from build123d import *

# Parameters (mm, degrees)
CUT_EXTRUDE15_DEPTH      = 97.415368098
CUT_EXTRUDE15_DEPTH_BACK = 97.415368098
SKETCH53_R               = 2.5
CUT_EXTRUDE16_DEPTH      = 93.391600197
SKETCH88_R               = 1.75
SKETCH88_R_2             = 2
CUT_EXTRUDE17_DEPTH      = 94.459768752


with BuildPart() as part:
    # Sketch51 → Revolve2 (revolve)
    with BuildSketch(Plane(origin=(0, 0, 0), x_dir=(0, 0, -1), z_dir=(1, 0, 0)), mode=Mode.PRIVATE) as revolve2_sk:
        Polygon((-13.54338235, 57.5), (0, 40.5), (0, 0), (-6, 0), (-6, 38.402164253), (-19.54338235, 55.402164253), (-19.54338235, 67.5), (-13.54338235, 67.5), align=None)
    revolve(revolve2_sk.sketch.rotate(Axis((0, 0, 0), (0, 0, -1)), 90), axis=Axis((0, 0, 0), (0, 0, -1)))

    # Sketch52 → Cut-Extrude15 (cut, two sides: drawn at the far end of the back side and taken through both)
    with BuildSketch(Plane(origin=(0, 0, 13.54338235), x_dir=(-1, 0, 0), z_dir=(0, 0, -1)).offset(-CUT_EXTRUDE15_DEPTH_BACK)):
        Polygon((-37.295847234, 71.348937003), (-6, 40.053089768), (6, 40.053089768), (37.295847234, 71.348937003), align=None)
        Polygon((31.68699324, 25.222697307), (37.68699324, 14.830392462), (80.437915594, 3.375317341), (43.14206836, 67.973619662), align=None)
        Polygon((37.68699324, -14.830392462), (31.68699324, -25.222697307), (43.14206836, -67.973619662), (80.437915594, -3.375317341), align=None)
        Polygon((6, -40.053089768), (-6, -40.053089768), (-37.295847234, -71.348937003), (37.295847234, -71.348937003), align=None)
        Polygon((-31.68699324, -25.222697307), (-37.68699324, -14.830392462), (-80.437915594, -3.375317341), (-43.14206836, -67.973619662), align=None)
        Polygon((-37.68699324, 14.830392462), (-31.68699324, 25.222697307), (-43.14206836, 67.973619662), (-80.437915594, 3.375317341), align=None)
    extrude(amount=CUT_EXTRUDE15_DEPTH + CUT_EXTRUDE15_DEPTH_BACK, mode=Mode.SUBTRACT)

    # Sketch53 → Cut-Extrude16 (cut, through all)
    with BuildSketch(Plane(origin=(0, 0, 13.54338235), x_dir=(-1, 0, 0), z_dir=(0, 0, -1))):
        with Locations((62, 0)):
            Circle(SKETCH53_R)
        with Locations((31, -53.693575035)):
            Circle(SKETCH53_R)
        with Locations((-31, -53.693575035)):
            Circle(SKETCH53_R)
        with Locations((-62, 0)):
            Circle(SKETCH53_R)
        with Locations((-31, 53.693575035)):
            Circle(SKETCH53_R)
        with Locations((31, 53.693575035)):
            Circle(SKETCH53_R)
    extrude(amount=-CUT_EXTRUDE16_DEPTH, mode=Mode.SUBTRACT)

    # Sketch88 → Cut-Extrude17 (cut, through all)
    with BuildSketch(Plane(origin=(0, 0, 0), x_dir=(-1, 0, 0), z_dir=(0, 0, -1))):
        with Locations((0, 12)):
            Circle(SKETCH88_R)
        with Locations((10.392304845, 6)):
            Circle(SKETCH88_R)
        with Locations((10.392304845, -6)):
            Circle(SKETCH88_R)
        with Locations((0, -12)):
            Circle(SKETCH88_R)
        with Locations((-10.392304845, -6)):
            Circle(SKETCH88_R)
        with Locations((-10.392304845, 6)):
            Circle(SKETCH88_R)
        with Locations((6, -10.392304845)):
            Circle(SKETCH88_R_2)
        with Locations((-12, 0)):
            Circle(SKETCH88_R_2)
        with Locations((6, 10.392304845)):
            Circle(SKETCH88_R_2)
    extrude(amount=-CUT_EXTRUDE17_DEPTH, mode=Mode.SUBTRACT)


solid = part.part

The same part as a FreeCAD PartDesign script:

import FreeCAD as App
import Part
import Sketcher
Q = App.Units.Quantity

doc = App.newDocument("Part")
body = doc.addObject("PartDesign::Body", "Body")

# Sketch on YZ plane
sketch1 = body.newObject("Sketcher::SketchObject", "Sketch")
sketch1.AttachmentSupport = (doc.getObject("YZ_Plane"), [""])
sketch1.MapMode = "FlatFace"
sketch1.addGeometry(Part.LineSegment(App.Vector(40, 0, 0), App.Vector(58, 14, 0)), False)
sketch1.addGeometry(Part.LineSegment(App.Vector(58, 14, 0), App.Vector(68, 14, 0)), False)
sketch1.addGeometry(Part.LineSegment(App.Vector(68, 14, 0), App.Vector(68, 20, 0)), False)
sketch1.addGeometry(Part.LineSegment(App.Vector(68, 20, 0), App.Vector(55, 20, 0)), False)
sketch1.addGeometry(Part.LineSegment(App.Vector(55, 20, 0), App.Vector(38, 6, 0)), False)
sketch1.addGeometry(Part.LineSegment(App.Vector(38, 6, 0), App.Vector(0, 6, 0)), False)
sketch1.addGeometry(Part.LineSegment(App.Vector(0, 6, 0), App.Vector(0, 0, 0)), False)
sketch1.addGeometry(Part.LineSegment(App.Vector(0, 0, 0), App.Vector(40, 0, 0)), False)
sketch1.addConstraint(Sketcher.Constraint("Coincident", 0, 2, 1, 1))
sketch1.addConstraint(Sketcher.Constraint("Coincident", 1, 2, 2, 1))
sketch1.addConstraint(Sketcher.Constraint("Coincident", 2, 2, 3, 1))
sketch1.addConstraint(Sketcher.Constraint("Coincident", 3, 2, 4, 1))
sketch1.addConstraint(Sketcher.Constraint("Coincident", 4, 2, 5, 1))
sketch1.addConstraint(Sketcher.Constraint("Coincident", 5, 2, 6, 1))
sketch1.addConstraint(Sketcher.Constraint("Coincident", 6, 2, 7, 1))
sketch1.addConstraint(Sketcher.Constraint("Coincident", 7, 2, 0, 1))
sketch1.addConstraint(Sketcher.Constraint("Horizontal", 1))
sketch1.addConstraint(Sketcher.Constraint("Vertical", 2))
sketch1.addConstraint(Sketcher.Constraint("Horizontal", 3))
sketch1.addConstraint(Sketcher.Constraint("Horizontal", 5))
sketch1.addConstraint(Sketcher.Constraint("Vertical", 6))
sketch1.addConstraint(Sketcher.Constraint("Horizontal", 7))
sketch1.addConstraint(Sketcher.Constraint("Coincident", 6, 2, -1, 1))
sketch1.addConstraint(Sketcher.Constraint("Parallel", 0, 4))
sketch1.addConstraint(Sketcher.Constraint("Equal", 2, 6))
sketch1.addConstraint(Sketcher.Constraint("DistanceX", 1, 1, 1, 2, Q("10 mm")))
sketch1.addConstraint(Sketcher.Constraint("DistanceY", 2, 1, 2, 2, Q("6 mm")))
sketch1.addConstraint(Sketcher.Constraint("DistanceX", 7, 1, 7, 2, Q("40.5 mm")))
sketch1.addConstraint(Sketcher.Constraint("DistanceX", 4, 2, 3, 2, Q("17 mm")))
sketch1.addConstraint(Sketcher.Constraint("Distance", 0, Q("21.735299 mm")))
sketch1.addConstraint(Sketcher.Constraint("DistanceX", 3, 2, 3, 1, Q("12.097836 mm")))
revolution = body.newObject("PartDesign::Revolution", "Revolution")
revolution.Profile = sketch1
revolution.ReferenceAxis = (sketch1, ["V_Axis"])
revolution.Angle = 360

# Sketch on XY plane
sketch2 = body.newObject("Sketcher::SketchObject", "Sketch001")
sketch2.AttachmentSupport = (doc.getObject("XY_Plane"), [""])
sketch2.MapMode = "FlatFace"
sketch2.AttachmentOffset = App.Placement(App.Vector(0, 0, 13.543382), App.Rotation())
sketch2.addGeometry(Part.LineSegment(App.Vector(37, 71, 0), App.Vector(6, 40, 0)), False)
sketch2.addGeometry(Part.LineSegment(App.Vector(6, 40, 0), App.Vector(-6, 40, 0)), False)
sketch2.addGeometry(Part.LineSegment(App.Vector(-6, 40, 0), App.Vector(-37, 71, 0)), False)
sketch2.addGeometry(Part.LineSegment(App.Vector(-37, 71, 0), App.Vector(37, 71, 0)), False)
sketch2.addGeometry(Part.LineSegment(App.Vector(-32, 25, 0), App.Vector(-38, 15, 0)), False)
sketch2.addGeometry(Part.LineSegment(App.Vector(-38, 15, 0), App.Vector(-80, 3, 0)), False)
sketch2.addGeometry(Part.LineSegment(App.Vector(-80, 3, 0), App.Vector(-43, 68, 0)), False)
sketch2.addGeometry(Part.LineSegment(App.Vector(-43, 68, 0), App.Vector(-32, 25, 0)), False)
sketch2.addGeometry(Part.LineSegment(App.Vector(-38, -15, 0), App.Vector(-32, -25, 0)), False)
sketch2.addGeometry(Part.LineSegment(App.Vector(-32, -25, 0), App.Vector(-43, -68, 0)), False)
sketch2.addGeometry(Part.LineSegment(App.Vector(-43, -68, 0), App.Vector(-80, -3, 0)), False)
sketch2.addGeometry(Part.LineSegment(App.Vector(-80, -3, 0), App.Vector(-38, -15, 0)), False)
sketch2.addGeometry(Part.LineSegment(App.Vector(-6, -40, 0), App.Vector(6, -40, 0)), False)
sketch2.addGeometry(Part.LineSegment(App.Vector(6, -40, 0), App.Vector(37, -71, 0)), False)
sketch2.addGeometry(Part.LineSegment(App.Vector(37, -71, 0), App.Vector(-37, -71, 0)), False)
sketch2.addGeometry(Part.LineSegment(App.Vector(-37, -71, 0), App.Vector(-6, -40, 0)), False)
sketch2.addGeometry(Part.LineSegment(App.Vector(32, -25, 0), App.Vector(38, -15, 0)), False)
sketch2.addGeometry(Part.LineSegment(App.Vector(38, -15, 0), App.Vector(80, -3, 0)), False)
sketch2.addGeometry(Part.LineSegment(App.Vector(80, -3, 0), App.Vector(43, -68, 0)), False)
sketch2.addGeometry(Part.LineSegment(App.Vector(43, -68, 0), App.Vector(32, -25, 0)), False)
sketch2.addGeometry(Part.LineSegment(App.Vector(38, 15, 0), App.Vector(32, 25, 0)), False)
sketch2.addGeometry(Part.LineSegment(App.Vector(32, 25, 0), App.Vector(43, 68, 0)), False)
sketch2.addGeometry(Part.LineSegment(App.Vector(43, 68, 0), App.Vector(80, 3, 0)), False)
sketch2.addGeometry(Part.LineSegment(App.Vector(80, 3, 0), App.Vector(38, 15, 0)), False)
sketch2.addConstraint(Sketcher.Constraint("Coincident", 0, 2, 1, 1))
sketch2.addConstraint(Sketcher.Constraint("Coincident", 1, 2, 2, 1))
sketch2.addConstraint(Sketcher.Constraint("Coincident", 2, 2, 3, 1))
sketch2.addConstraint(Sketcher.Constraint("Coincident", 3, 2, 0, 1))
sketch2.addConstraint(Sketcher.Constraint("Coincident", 4, 2, 5, 1))
sketch2.addConstraint(Sketcher.Constraint("Coincident", 5, 2, 6, 1))
sketch2.addConstraint(Sketcher.Constraint("Coincident", 6, 2, 7, 1))
sketch2.addConstraint(Sketcher.Constraint("Coincident", 7, 2, 4, 1))
sketch2.addConstraint(Sketcher.Constraint("Coincident", 8, 2, 9, 1))
sketch2.addConstraint(Sketcher.Constraint("Coincident", 9, 2, 10, 1))
sketch2.addConstraint(Sketcher.Constraint("Coincident", 10, 2, 11, 1))
sketch2.addConstraint(Sketcher.Constraint("Coincident", 11, 2, 8, 1))
sketch2.addConstraint(Sketcher.Constraint("Coincident", 12, 2, 13, 1))
sketch2.addConstraint(Sketcher.Constraint("Coincident", 13, 2, 14, 1))
sketch2.addConstraint(Sketcher.Constraint("Coincident", 14, 2, 15, 1))
sketch2.addConstraint(Sketcher.Constraint("Coincident", 15, 2, 12, 1))
sketch2.addConstraint(Sketcher.Constraint("Coincident", 16, 2, 17, 1))
sketch2.addConstraint(Sketcher.Constraint("Coincident", 17, 2, 18, 1))
sketch2.addConstraint(Sketcher.Constraint("Coincident", 18, 2, 19, 1))
sketch2.addConstraint(Sketcher.Constraint("Coincident", 19, 2, 16, 1))
sketch2.addConstraint(Sketcher.Constraint("Coincident", 20, 2, 21, 1))
sketch2.addConstraint(Sketcher.Constraint("Coincident", 21, 2, 22, 1))
sketch2.addConstraint(Sketcher.Constraint("Coincident", 22, 2, 23, 1))
sketch2.addConstraint(Sketcher.Constraint("Coincident", 23, 2, 20, 1))
sketch2.addConstraint(Sketcher.Constraint("Horizontal", 1))
sketch2.addConstraint(Sketcher.Constraint("Horizontal", 3))
sketch2.addConstraint(Sketcher.Constraint("Horizontal", 12))
sketch2.addConstraint(Sketcher.Constraint("Horizontal", 14))
sketch2.addConstraint(Sketcher.Constraint("Symmetric", 1, 2, 12, 2, -1, 1))
sketch2.addConstraint(Sketcher.Constraint("Symmetric", 2, 2, 13, 2, -1, 1))
sketch2.addConstraint(Sketcher.Constraint("Symmetric", 4, 2, 16, 2, -1, 1))
sketch2.addConstraint(Sketcher.Constraint("Symmetric", 5, 2, 17, 2, -1, 1))
sketch2.addConstraint(Sketcher.Constraint("Symmetric", 6, 2, 18, 2, -1, 1))
sketch2.addConstraint(Sketcher.Constraint("Symmetric", 7, 2, 19, 2, -1, 1))
sketch2.addConstraint(Sketcher.Constraint("Symmetric", 8, 2, 20, 2, -1, 1))
sketch2.addConstraint(Sketcher.Constraint("Symmetric", 9, 2, 21, 2, -1, 1))
sketch2.addConstraint(Sketcher.Constraint("Symmetric", 10, 2, 22, 2, -1, 1))
sketch2.addConstraint(Sketcher.Constraint("Symmetric", 11, 2, 23, 2, -1, 1))
sketch2.addConstraint(Sketcher.Constraint("Symmetric", 11, 2, 16, 2, -2))
sketch2.addConstraint(Sketcher.Constraint("Symmetric", 10, 2, 17, 2, -2))
sketch2.addConstraint(Sketcher.Constraint("Symmetric", 9, 2, 18, 2, -2))
sketch2.addConstraint(Sketcher.Constraint("Symmetric", 8, 2, 19, 2, -2))
sketch2.addConstraint(Sketcher.Constraint("Perpendicular", 0, 2))
sketch2.addConstraint(Sketcher.Constraint("Parallel", 4, 6))
sketch2.addConstraint(Sketcher.Constraint("Perpendicular", 5, 7))
sketch2.addConstraint(Sketcher.Constraint("Perpendicular", 13, 15))
sketch2.addConstraint(Sketcher.Constraint("Vertical", 0, 2, 12, 2))
sketch2.addConstraint(Sketcher.Constraint("Vertical", 3, 2, 13, 2))
sketch2.addConstraint(Sketcher.Constraint("Vertical", 2, 2, 14, 2))
sketch2.addConstraint(Sketcher.Constraint("Equal", 2, 5))
sketch2.addConstraint(Sketcher.Constraint("Equal", 5, 7))
sketch2.addConstraint(Sketcher.Constraint("DistanceX", 1, 2, 1, 1, Q("12 mm")))
sketch2.addConstraint(Sketcher.Constraint("Angle", 4, Q("-120 deg")))
sketch2.addConstraint(Sketcher.Constraint("Distance", 4, Q("12 mm")))
sketch2.addConstraint(Sketcher.Constraint("Distance", 0, Q("44.259012 mm")))
sketch2.addConstraint(Sketcher.Constraint("DistanceY", -1, 1, 0, 2, Q("40.05309 mm")))
sketch2.addConstraint(Sketcher.Constraint("DistanceX", 6, 2, -1, 1, Q("43.142068 mm")))
sketch2.addConstraint(Sketcher.Constraint("DistanceY", -1, 1, 6, 2, Q("67.97362 mm")))
pocket1 = body.newObject("PartDesign::Pocket", "Pocket")
pocket1.Profile = sketch2
pocket1.Type = "ThroughAll"
pocket1.Midplane = True

# Sketch on XY plane
sketch3 = body.newObject("Sketcher::SketchObject", "Sketch002")
sketch3.AttachmentSupport = (doc.getObject("XY_Plane"), [""])
sketch3.MapMode = "FlatFace"
sketch3.AttachmentOffset = App.Placement(App.Vector(0, 0, 13.543382), App.Rotation())
sketch3.addGeometry(Part.Circle(App.Vector(-62, 0, 0), App.Vector(0, 0, 1), 2.5), False)
sketch3.addGeometry(Part.Circle(App.Vector(-31, -53.7, 0), App.Vector(0, 0, 1), 2.5), False)
sketch3.addGeometry(Part.Circle(App.Vector(31, -53.7, 0), App.Vector(0, 0, 1), 2.5), False)
sketch3.addGeometry(Part.Circle(App.Vector(62, 0, 0), App.Vector(0, 0, 1), 2.5), False)
sketch3.addGeometry(Part.Circle(App.Vector(31, 53.7, 0), App.Vector(0, 0, 1), 2.5), False)
sketch3.addGeometry(Part.Circle(App.Vector(-31, 53.7, 0), App.Vector(0, 0, 1), 2.5), False)
sketch3.addConstraint(Sketcher.Constraint("Equal", 0, 1))
sketch3.addConstraint(Sketcher.Constraint("Equal", 1, 2))
sketch3.addConstraint(Sketcher.Constraint("Equal", 2, 3))
sketch3.addConstraint(Sketcher.Constraint("Equal", 3, 4))
sketch3.addConstraint(Sketcher.Constraint("Equal", 4, 5))
sketch3.addConstraint(Sketcher.Constraint("Symmetric", 0, 3, 3, 3, -1, 1))
sketch3.addConstraint(Sketcher.Constraint("Symmetric", 1, 3, 4, 3, -1, 1))
sketch3.addConstraint(Sketcher.Constraint("Symmetric", 2, 3, 5, 3, -1, 1))
sketch3.addConstraint(Sketcher.Constraint("Symmetric", 1, 3, 2, 3, -2))
sketch3.addConstraint(Sketcher.Constraint("PointOnObject", 0, 3, -1))
sketch3.addConstraint(Sketcher.Constraint("Diameter", 0, Q("5 mm")))
sketch3.addConstraint(Sketcher.Constraint("DistanceX", 0, 3, -1, 1, Q("62 mm")))
sketch3.addConstraint(Sketcher.Constraint("DistanceX", 1, 3, -1, 1, Q("31 mm")))
sketch3.addConstraint(Sketcher.Constraint("DistanceY", 2, 3, 4, 3, Q("107.38715 mm")))
pocket2 = body.newObject("PartDesign::Pocket", "Pocket001")
pocket2.Profile = sketch3
pocket2.Type = "ThroughAll"
pocket2.Reversed = True

# Sketch on XY plane
sketch4 = body.newObject("Sketcher::SketchObject", "Sketch003")
sketch4.AttachmentSupport = (doc.getObject("XY_Plane"), [""])
sketch4.MapMode = "FlatFace"
sketch4.addGeometry(Part.Circle(App.Vector(0, 12, 0), App.Vector(0, 0, 1), 1.8), False)
sketch4.addGeometry(Part.Circle(App.Vector(-10.4, 6, 0), App.Vector(0, 0, 1), 1.8), False)
sketch4.addGeometry(Part.Circle(App.Vector(-10.4, -6, 0), App.Vector(0, 0, 1), 1.8), False)
sketch4.addGeometry(Part.Circle(App.Vector(0, -12, 0), App.Vector(0, 0, 1), 1.8), False)
sketch4.addGeometry(Part.Circle(App.Vector(10.4, -6, 0), App.Vector(0, 0, 1), 1.8), False)
sketch4.addGeometry(Part.Circle(App.Vector(10.4, 6, 0), App.Vector(0, 0, 1), 1.8), False)
sketch4.addGeometry(Part.Circle(App.Vector(-6, -10.4, 0), App.Vector(0, 0, 1), 2), False)
sketch4.addGeometry(Part.Circle(App.Vector(12, 0, 0), App.Vector(0, 0, 1), 2), False)
sketch4.addGeometry(Part.Circle(App.Vector(-6, 10.4, 0), App.Vector(0, 0, 1), 2), False)
sketch4.addConstraint(Sketcher.Constraint("Equal", 0, 1))
sketch4.addConstraint(Sketcher.Constraint("Equal", 1, 2))
sketch4.addConstraint(Sketcher.Constraint("Equal", 2, 3))
sketch4.addConstraint(Sketcher.Constraint("Equal", 3, 4))
sketch4.addConstraint(Sketcher.Constraint("Equal", 4, 5))
sketch4.addConstraint(Sketcher.Constraint("Equal", 6, 7))
sketch4.addConstraint(Sketcher.Constraint("Equal", 7, 8))
sketch4.addConstraint(Sketcher.Constraint("Symmetric", 0, 3, 3, 3, -1, 1))
sketch4.addConstraint(Sketcher.Constraint("Symmetric", 1, 3, 4, 3, -1, 1))
sketch4.addConstraint(Sketcher.Constraint("Symmetric", 2, 3, 5, 3, -1, 1))
sketch4.addConstraint(Sketcher.Constraint("Symmetric", 2, 3, 4, 3, -2))
sketch4.addConstraint(Sketcher.Constraint("Symmetric", 6, 3, 8, 3, -1))
sketch4.addConstraint(Sketcher.Constraint("PointOnObject", 0, 3, -2))
sketch4.addConstraint(Sketcher.Constraint("PointOnObject", 7, 3, -1))
sketch4.addConstraint(Sketcher.Constraint("Diameter", 6, Q("4 mm")))
sketch4.addConstraint(Sketcher.Constraint("Diameter", 0, Q("3.5 mm")))
sketch4.addConstraint(Sketcher.Constraint("DistanceY", -1, 1, 0, 3, Q("12 mm")))
sketch4.addConstraint(Sketcher.Constraint("DistanceY", -1, 1, 1, 3, Q("6 mm")))
sketch4.addConstraint(Sketcher.Constraint("DistanceX", 6, 3, -1, 1, Q("6 mm")))
sketch4.addConstraint(Sketcher.Constraint("DistanceX", -1, 1, 7, 3, Q("12 mm")))
sketch4.addConstraint(Sketcher.Constraint("DistanceX", 2, 3, 4, 3, Q("20.78461 mm")))
sketch4.addConstraint(Sketcher.Constraint("DistanceY", 6, 3, 8, 3, Q("20.78461 mm")))
pocket3 = body.newObject("PartDesign::Pocket", "Pocket002")
pocket3.Profile = sketch4
pocket3.Type = "ThroughAll"
pocket3.Reversed = True

doc.recompute()
